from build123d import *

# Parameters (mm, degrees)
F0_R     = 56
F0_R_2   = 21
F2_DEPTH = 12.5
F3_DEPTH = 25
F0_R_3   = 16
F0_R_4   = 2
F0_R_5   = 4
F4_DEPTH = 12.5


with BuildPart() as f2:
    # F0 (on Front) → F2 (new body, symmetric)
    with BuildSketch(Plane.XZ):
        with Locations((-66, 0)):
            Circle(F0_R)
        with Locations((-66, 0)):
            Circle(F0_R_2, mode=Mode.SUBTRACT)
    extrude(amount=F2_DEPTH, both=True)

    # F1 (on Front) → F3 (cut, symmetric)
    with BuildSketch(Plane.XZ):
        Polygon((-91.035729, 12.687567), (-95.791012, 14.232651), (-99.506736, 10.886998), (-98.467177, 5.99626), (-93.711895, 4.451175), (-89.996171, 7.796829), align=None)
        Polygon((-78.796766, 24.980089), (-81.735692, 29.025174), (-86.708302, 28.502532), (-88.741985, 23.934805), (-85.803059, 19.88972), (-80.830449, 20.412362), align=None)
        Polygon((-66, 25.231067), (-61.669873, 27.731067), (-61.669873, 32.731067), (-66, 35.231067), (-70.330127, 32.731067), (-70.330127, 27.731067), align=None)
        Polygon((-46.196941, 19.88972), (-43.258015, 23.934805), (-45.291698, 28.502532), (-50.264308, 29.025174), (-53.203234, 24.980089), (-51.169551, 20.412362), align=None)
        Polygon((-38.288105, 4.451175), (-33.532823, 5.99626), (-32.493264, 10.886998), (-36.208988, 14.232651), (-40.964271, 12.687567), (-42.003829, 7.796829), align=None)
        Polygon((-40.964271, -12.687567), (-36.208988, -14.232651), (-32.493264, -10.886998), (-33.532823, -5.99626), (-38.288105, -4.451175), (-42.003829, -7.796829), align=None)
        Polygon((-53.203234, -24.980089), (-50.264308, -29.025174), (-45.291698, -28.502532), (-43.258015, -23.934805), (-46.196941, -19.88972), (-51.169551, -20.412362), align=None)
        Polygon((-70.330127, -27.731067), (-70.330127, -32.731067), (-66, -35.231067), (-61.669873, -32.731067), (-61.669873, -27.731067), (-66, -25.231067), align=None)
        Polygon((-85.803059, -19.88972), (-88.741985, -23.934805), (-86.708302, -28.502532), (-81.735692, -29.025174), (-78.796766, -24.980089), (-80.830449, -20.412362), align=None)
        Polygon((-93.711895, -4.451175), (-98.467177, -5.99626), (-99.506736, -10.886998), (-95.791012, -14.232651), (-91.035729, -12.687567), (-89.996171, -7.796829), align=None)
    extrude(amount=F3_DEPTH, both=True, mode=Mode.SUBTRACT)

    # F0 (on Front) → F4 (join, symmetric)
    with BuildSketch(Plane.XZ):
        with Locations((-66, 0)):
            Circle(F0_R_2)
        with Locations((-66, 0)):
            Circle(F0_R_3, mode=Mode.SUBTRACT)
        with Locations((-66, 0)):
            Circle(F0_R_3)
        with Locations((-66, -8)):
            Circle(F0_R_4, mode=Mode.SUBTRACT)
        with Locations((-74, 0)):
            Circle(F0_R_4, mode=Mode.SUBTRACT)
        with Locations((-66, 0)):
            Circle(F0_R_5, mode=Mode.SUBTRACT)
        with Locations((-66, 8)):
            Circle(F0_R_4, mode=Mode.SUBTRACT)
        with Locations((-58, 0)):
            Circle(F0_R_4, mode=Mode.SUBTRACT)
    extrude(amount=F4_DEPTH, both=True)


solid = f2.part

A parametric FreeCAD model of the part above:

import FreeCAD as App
import Part
import Sketcher
from FreeCAD import Vector
Q = App.Units.Quantity

doc = App.newDocument("Part")
params = doc.addObject("Spreadsheet::Sheet", "Params")
for row, (alias, value) in enumerate([
    ("sketch1_diameter", "112 mm"),
    ("sketch1_diameter2", "42 mm"),
    ("pad1_length", "25 mm"),
    ("sketch2_height", "5 mm"),
    ("sketch2_length", "5 mm"),
    ("pocket1_length", "50 mm"),
    ("sketch3_diameter", "42 mm"),
    ("sketch3_diameter2", "4 mm"),
    ("sketch3_diameter3", "8 mm"),
    ("pad2_length", "25 mm"),
], start=1):
    params.set(f"A{row}", alias)
    params.set(f"B{row}", "=" + value)
    params.setAlias(f"B{row}", alias)

body = doc.addObject("PartDesign::Body", "Body")

# Sketch on XZ plane
sketch1 = body.newObject("Sketcher::SketchObject", "Sketch")
sketch1.AttachmentSupport = (doc.getObject("XZ_Plane"), [""])
sketch1.MapMode = "FlatFace"
sketch1.addGeometry(Part.Circle(Vector(-66, 0, 0), Vector(0, 0, 1), 56), False)
sketch1.addGeometry(Part.Circle(Vector(-66, 0, 0), Vector(0, 0, 1), 21), False)
sketch1.addConstraint(Sketcher.Constraint("Coincident", 1, 3, 0, 3))
sketch1.addConstraint(Sketcher.Constraint("PointOnObject", 0, 3, -1))
sketch1.addConstraint(Sketcher.Constraint("Diameter", 0, 112.0))
sketch1.addConstraint(Sketcher.Constraint("Diameter", 1, 42.0))
sketch1.addConstraint(Sketcher.Constraint("DistanceX", 0, 3, -1, 1, 66.0))
sketch1.setExpression("Constraints[2]", "Params.sketch1_diameter")
sketch1.setExpression("Constraints[3]", "Params.sketch1_diameter2")
pad1 = body.newObject("PartDesign::Pad", "Pad")
pad1.Profile = sketch1
pad1.setExpression("Length", "Params.pad1_length")
pad1.Midplane = True

# Sketch on XZ plane
sketch2 = body.newObject("Sketcher::SketchObject", "Sketch001")
sketch2.AttachmentSupport = (doc.getObject("XZ_Plane"), [""])
sketch2.MapMode = "FlatFace"
sketch2.addGeometry(Part.LineSegment(Vector(-91, 12.7, 0), Vector(-95.8, 14.2, 0)), False)
sketch2.addGeometry(Part.LineSegment(Vector(-95.8, 14.2, 0), Vector(-99.5, 10.9, 0)), False)
sketch2.addGeometry(Part.LineSegment(Vector(-99.5, 10.9, 0), Vector(-98.5, 6, 0)), False)
sketch2.addGeometry(Part.LineSegment(Vector(-98.5, 6, 0), Vector(-93.7, 4.5, 0)), False)
sketch2.addGeometry(Part.LineSegment(Vector(-93.7, 4.5, 0), Vector(-90, 7.8, 0)), False)
sketch2.addGeometry(Part.LineSegment(Vector(-90, 7.8, 0), Vector(-91, 12.7, 0)), False)
sketch2.addGeometry(Part.LineSegment(Vector(-78.8, 25, 0), Vector(-81.7, 29, 0)), False)
sketch2.addGeometry(Part.LineSegment(Vector(-81.7, 29, 0), Vector(-86.7, 28.5, 0)), False)
sketch2.addGeometry(Part.LineSegment(Vector(-86.7, 28.5, 0), Vector(-88.7, 23.9, 0)), False)
sketch2.addGeometry(Part.LineSegment(Vector(-88.7, 23.9, 0), Vector(-85.8, 19.9, 0)), False)
sketch2.addGeometry(Part.LineSegment(Vector(-85.8, 19.9, 0), Vector(-80.8, 20.4, 0)), False)
sketch2.addGeometry(Part.LineSegment(Vector(-80.8, 20.4, 0), Vector(-78.8, 25, 0)), False)
sketch2.addGeometry(Part.LineSegment(Vector(-66, 25.2, 0), Vector(-61.7, 27.7, 0)), False)
sketch2.addGeometry(Part.LineSegment(Vector(-61.7, 27.7, 0), Vector(-61.7, 32.7, 0)), False)
sketch2.addGeometry(Part.LineSegment(Vector(-61.7, 32.7, 0), Vector(-66, 35.2, 0)), False)
sketch2.addGeometry(Part.LineSegment(Vector(-66, 35.2, 0), Vector(-70.3, 32.7, 0)), False)
sketch2.addGeometry(Part.LineSegment(Vector(-70.3, 32.7, 0), Vector(-70.3, 27.7, 0)), False)
sketch2.addGeometry(Part.LineSegment(Vector(-70.3, 27.7, 0), Vector(-66, 25.2, 0)), False)
sketch2.addGeometry(Part.LineSegment(Vector(-46.2, 19.9, 0), Vector(-43.3, 23.9, 0)), False)
sketch2.addGeometry(Part.LineSegment(Vector(-43.3, 23.9, 0), Vector(-45.3, 28.5, 0)), False)
sketch2.addGeometry(Part.LineSegment(Vector(-45.3, 28.5, 0), Vector(-50.3, 29, 0)), False)
sketch2.addGeometry(Part.LineSegment(Vector(-50.3, 29, 0), Vector(-53.2, 25, 0)), False)
sketch2.addGeometry(Part.LineSegment(Vector(-53.2, 25, 0), Vector(-51.2, 20.4, 0)), False)
sketch2.addGeometry(Part.LineSegment(Vector(-51.2, 20.4, 0), Vector(-46.2, 19.9, 0)), False)
sketch2.addGeometry(Part.LineSegment(Vector(-38.3, 4.5, 0), Vector(-33.5, 6, 0)), False)
sketch2.addGeometry(Part.LineSegment(Vector(-33.5, 6, 0), Vector(-32.5, 10.9, 0)), False)
sketch2.addGeometry(Part.LineSegment(Vector(-32.5, 10.9, 0), Vector(-36.2, 14.2, 0)), False)
sketch2.addGeometry(Part.LineSegment(Vector(-36.2, 14.2, 0), Vector(-41, 12.7, 0)), False)
sketch2.addGeometry(Part.LineSegment(Vector(-41, 12.7, 0), Vector(-42, 7.8, 0)), False)
sketch2.addGeometry(Part.LineSegment(Vector(-42, 7.8, 0), Vector(-38.3, 4.5, 0)), False)
sketch2.addGeometry(Part.LineSegment(Vector(-41, -12.7, 0), Vector(-36.2, -14.2, 0)), False)
sketch2.addGeometry(Part.LineSegment(Vector(-36.2, -14.2, 0), Vector(-32.5, -10.9, 0)), False)
sketch2.addGeometry(Part.LineSegment(Vector(-32.5, -10.9, 0), Vector(-33.5, -6, 0)), False)
sketch2.addGeometry(Part.LineSegment(Vector(-33.5, -6, 0), Vector(-38.3, -4.5, 0)), False)
sketch2.addGeometry(Part.LineSegment(Vector(-38.3, -4.5, 0), Vector(-42, -7.8, 0)), False)
sketch2.addGeometry(Part.LineSegment(Vector(-42, -7.8, 0), Vector(-41, -12.7, 0)), False)
sketch2.addGeometry(Part.LineSegment(Vector(-53.2, -25, 0), Vector(-50.3, -29, 0)), False)
sketch2.addGeometry(Part.LineSegment(Vector(-50.3, -29, 0), Vector(-45.3, -28.5, 0)), False)
sketch2.addGeometry(Part.LineSegment(Vector(-45.3, -28.5, 0), Vector(-43.3, -23.9, 0)), False)
sketch2.addGeometry(Part.LineSegment(Vector(-43.3, -23.9, 0), Vector(-46.2, -19.9, 0)), False)
sketch2.addGeometry(Part.LineSegment(Vector(-46.2, -19.9, 0), Vector(-51.2, -20.4, 0)), False)
sketch2.addGeometry(Part.LineSegment(Vector(-51.2, -20.4, 0), Vector(-53.2, -25, 0)), False)
sketch2.addGeometry(Part.LineSegment(Vector(-70.3, -27.7, 0), Vector(-70.3, -32.7, 0)), False)
sketch2.addGeometry(Part.LineSegment(Vector(-70.3, -32.7, 0), Vector(-66, -35.2, 0)), False)
sketch2.addGeometry(Part.LineSegment(Vector(-66, -35.2, 0), Vector(-61.7, -32.7, 0)), False)
sketch2.addGeometry(Part.LineSegment(Vector(-61.7, -32.7, 0), Vector(-61.7, -27.7, 0)), False)
sketch2.addGeometry(Part.LineSegment(Vector(-61.7, -27.7, 0), Vector(-66, -25.2, 0)), False)
sketch2.addGeometry(Part.LineSegment(Vector(-66, -25.2, 0), Vector(-70.3, -27.7, 0)), False)
sketch2.addGeometry(Part.LineSegment(Vector(-85.8, -19.9, 0), Vector(-88.7, -23.9, 0)), False)
sketch2.addGeometry(Part.LineSegment(Vector(-88.7, -23.9, 0), Vector(-86.7, -28.5, 0)), False)
sketch2.addGeometry(Part.LineSegment(Vector(-86.7, -28.5, 0), Vector(-81.7, -29, 0)), False)
sketch2.addGeometry(Part.LineSegment(Vector(-81.7, -29, 0), Vector(-78.8, -25, 0)), False)
sketch2.addGeometry(Part.LineSegment(Vector(-78.8, -25, 0), Vector(-80.8, -20.4, 0)), False)
sketch2.addGeometry(Part.LineSegment(Vector(-80.8, -20.4, 0), Vector(-85.8, -19.9, 0)), False)
sketch2.addGeometry(Part.LineSegment(Vector(-93.7, -4.5, 0), Vector(-98.5, -6, 0)), False)
sketch2.addGeometry(Part.LineSegment(Vector(-98.5, -6, 0), Vector(-99.5, -10.9, 0)), False)
sketch2.addGeometry(Part.LineSegment(Vector(-99.5, -10.9, 0), Vector(-95.8, -14.2, 0)), False)
sketch2.addGeometry(Part.LineSegment(Vector(-95.8, -14.2, 0), Vector(-91, -12.7, 0)), False)
sketch2.addGeometry(Part.LineSegment(Vector(-91, -12.7, 0), Vector(-90, -7.8, 0)), False)
sketch2.addGeometry(Part.LineSegment(Vector(-90, -7.8, 0), Vector(-93.7, -4.5, 0)), False)
sketch2.addConstraint(Sketcher.Constraint("Coincident", 0, 2, 1, 1))
sketch2.addConstraint(Sketcher.Constraint("Coincident", 1, 2, 2, 1))
sketch2.addConstraint(Sketcher.Constraint("Coincident", 2, 2, 3, 1))
sketch2.addConstraint(Sketcher.Constraint("Coincident", 3, 2, 4, 1))
sketch2.addConstraint(Sketcher.Constraint("Coincident", 4, 2, 5, 1))
sketch2.addConstraint(Sketcher.Constraint("Coincident", 5, 2, 0, 1))
sketch2.addConstraint(Sketcher.Constraint("Coincident", 6, 2, 7, 1))
sketch2.addConstraint(Sketcher.Constraint("Coincident", 7, 2, 8, 1))
sketch2.addConstraint(Sketcher.Constraint("Coincident", 8, 2, 9, 1))
sketch2.addConstraint(Sketcher.Constraint("Coincident", 9, 2, 10, 1))
sketch2.addConstraint(Sketcher.Constraint("Coincident", 10, 2, 11, 1))
sketch2.addConstraint(Sketcher.Constraint("Coincident", 11, 2, 6, 1))
sketch2.addConstraint(Sketcher.Constraint("Coincident", 12, 2, 13, 1))
sketch2.addConstraint(Sketcher.Constraint("Coincident", 13, 2, 14, 1))
sketch2.addConstraint(Sketcher.Constraint("Coincident", 14, 2, 15, 1))
sketch2.addConstraint(Sketcher.Constraint("Coincident", 15, 2, 16, 1))
sketch2.addConstraint(Sketcher.Constraint("Coincident", 16, 2, 17, 1))
sketch2.addConstraint(Sketcher.Constraint("Coincident", 17, 2, 12, 1))
sketch2.addConstraint(Sketcher.Constraint("Coincident", 18, 2, 19, 1))
sketch2.addConstraint(Sketcher.Constraint("Coincident", 19, 2, 20, 1))
sketch2.addConstraint(Sketcher.Constraint("Coincident", 20, 2, 21, 1))
sketch2.addConstraint(Sketcher.Constraint("Coincident", 21, 2, 22, 1))
sketch2.addConstraint(Sketcher.Constraint("Coincident", 22, 2, 23, 1))
sketch2.addConstraint(Sketcher.Constraint("Coincident", 23, 2, 18, 1))
sketch2.addConstraint(Sketcher.Constraint("Coincident", 24, 2, 25, 1))
sketch2.addConstraint(Sketcher.Constraint("Coincident", 25, 2, 26, 1))
sketch2.addConstraint(Sketcher.Constraint("Coincident", 26, 2, 27, 1))
sketch2.addConstraint(Sketcher.Constraint("Coincident", 27, 2, 28, 1))
sketch2.addConstraint(Sketcher.Constraint("Coincident", 28, 2, 29, 1))
sketch2.addConstraint(Sketcher.Constraint("Coincident", 29, 2, 24, 1))
sketch2.addConstraint(Sketcher.Constraint("Coincident", 30, 2, 31, 1))
sketch2.addConstraint(Sketcher.Constraint("Coincident", 31, 2, 32, 1))
sketch2.addConstraint(Sketcher.Constraint("Coincident", 32, 2, 33, 1))
sketch2.addConstraint(Sketcher.Constraint("Coincident", 33, 2, 34, 1))
sketch2.addConstraint(Sketcher.Constraint("Coincident", 34, 2, 35, 1))
sketch2.addConstraint(Sketcher.Constraint("Coincident", 35, 2, 30, 1))
sketch2.addConstraint(Sketcher.Constraint("Coincident", 36, 2, 37, 1))
sketch2.addConstraint(Sketcher.Constraint("Coincident", 37, 2, 38, 1))
sketch2.addConstraint(Sketcher.Constraint("Coincident", 38, 2, 39, 1))
sketch2.addConstraint(Sketcher.Constraint("Coincident", 39, 2, 40, 1))
sketch2.addConstraint(Sketcher.Constraint("Coincident", 40, 2, 41, 1))
sketch2.addConstraint(Sketcher.Constraint("Coincident", 41, 2, 36, 1))
sketch2.addConstraint(Sketcher.Constraint("Coincident", 42, 2, 43, 1))
sketch2.addConstraint(Sketcher.Constraint("Coincident", 43, 2, 44, 1))
sketch2.addConstraint(Sketcher.Constraint("Coincident", 44, 2, 45, 1))
sketch2.addConstraint(Sketcher.Constraint("Coincident", 45, 2, 46, 1))
sketch2.addConstraint(Sketcher.Constraint("Coincident", 46, 2, 47, 1))
sketch2.addConstraint(Sketcher.Constraint("Coincident", 47, 2, 42, 1))
sketch2.addConstraint(Sketcher.Constraint("Coincident", 48, 2, 49, 1))
sketch2.addConstraint(Sketcher.Constraint("Coincident", 49, 2, 50, 1))
sketch2.addConstraint(Sketcher.Constraint("Coincident", 50, 2, 51, 1))
sketch2.addConstraint(Sketcher.Constraint("Coincident", 51, 2, 52, 1))
sketch2.addConstraint(Sketcher.Constraint("Coincident", 52, 2, 53, 1))
sketch2.addConstraint(Sketcher.Constraint("Coincident", 53, 2, 48, 1))
sketch2.addConstraint(Sketcher.Constraint("Coincident", 54, 2, 55, 1))
sketch2.addConstraint(Sketcher.Constraint("Coincident", 55, 2, 56, 1))
sketch2.addConstraint(Sketcher.Constraint("Coincident", 56, 2, 57, 1))
sketch2.addConstraint(Sketcher.Constraint("Coincident", 57, 2, 58, 1))
sketch2.addConstraint(Sketcher.Constraint("Coincident", 58, 2, 59, 1))
sketch2.addConstraint(Sketcher.Constraint("Coincident", 59, 2, 54, 1))
sketch2.addConstraint(Sketcher.Constraint("Vertical", 13))
sketch2.addConstraint(Sketcher.Constraint("Vertical", 16))
sketch2.addConstraint(Sketcher.Constraint("Vertical", 42))
sketch2.addConstraint(Sketcher.Constraint("Vertical", 45))
sketch2.addConstraint(Sketcher.Constraint("Symmetric", 26, 2, 30, 2, -1))
sketch2.addConstraint(Sketcher.Constraint("Symmetric", 25, 2, 31, 2, -1))
sketch2.addConstraint(Sketcher.Constraint("Symmetric", 24, 2, 32, 2, -1))
sketch2.addConstraint(Sketcher.Constraint("Symmetric", 29, 2, 33, 2, -1))
sketch2.addConstraint(Sketcher.Constraint("Symmetric", 28, 2, 34, 2, -1))
sketch2.addConstraint(Sketcher.Constraint("Symmetric", 27, 2, 35, 2, -1))
sketch2.addConstraint(Sketcher.Constraint("Symmetric", 20, 2, 36, 2, -1))
sketch2.addConstraint(Sketcher.Constraint("Symmetric", 19, 2, 37, 2, -1))
sketch2.addConstraint(Sketcher.Constraint("Symmetric", 18, 2, 38, 2, -1))
sketch2.addConstraint(Sketcher.Constraint("Symmetric", 23, 2, 39, 2, -1))
sketch2.addConstraint(Sketcher.Constraint("Symmetric", 22, 2, 40, 2, -1))
sketch2.addConstraint(Sketcher.Constraint("Symmetric", 21, 2, 41, 2, -1))
sketch2.addConstraint(Sketcher.Constraint("Symmetric", 15, 2, 42, 2, -1))
sketch2.addConstraint(Sketcher.Constraint("Symmetric", 14, 2, 43, 2, -1))
sketch2.addConstraint(Sketcher.Constraint("Symmetric", 13, 2, 44, 2, -1))
sketch2.addConstraint(Sketcher.Constraint("Symmetric", 17, 2, 46, 2, -1))
sketch2.addConstraint(Sketcher.Constraint("Symmetric", 8, 2, 48, 2, -1))
sketch2.addConstraint(Sketcher.Constraint("Symmetric", 7, 2, 49, 2, -1))
sketch2.addConstraint(Sketcher.Constraint("Symmetric", 6, 2, 50, 2, -1))
sketch2.addConstraint(Sketcher.Constraint("Symmetric", 11, 2, 51, 2, -1))
sketch2.addConstraint(Sketcher.Constraint("Symmetric", 10, 2, 52, 2, -1))
sketch2.addConstraint(Sketcher.Constraint("Symmetric", 9, 2, 53, 2, -1))
sketch2.addConstraint(Sketcher.Constraint("Symmetric", 2, 2, 54, 2, -1))
sketch2.addConstraint(Sketcher.Constraint("Symmetric", 1, 2, 55, 2, -1))
sketch2.addConstraint(Sketcher.Constraint("Symmetric", 0, 2, 56, 2, -1))
sketch2.addConstraint(Sketcher.Constraint("Symmetric", 5, 2, 57, 2, -1))
sketch2.addConstraint(Sketcher.Constraint("Symmetric", 4, 2, 58, 2, -1))
sketch2.addConstraint(Sketcher.Constraint("Symmetric", 3, 2, 59, 2, -1))
sketch2.addConstraint(Sketcher.Constraint("Parallel", 0, 3))
sketch2.addConstraint(Sketcher.Constraint("Parallel", 1, 4))
sketch2.addConstraint(Sketcher.Constraint("Parallel", 2, 5))
sketch2.addConstraint(Sketcher.Constraint("Parallel", 6, 9))
sketch2.addConstraint(Sketcher.Constraint("Parallel", 7, 10))
sketch2.addConstraint(Sketcher.Constraint("Parallel", 8, 11))
sketch2.addConstraint(Sketcher.Constraint("Parallel", 12, 15))
sketch2.addConstraint(Sketcher.Constraint("Parallel", 14, 17))
sketch2.addConstraint(Sketcher.Constraint("Parallel", 18, 21))
sketch2.addConstraint(Sketcher.Constraint("Parallel", 19, 22))
sketch2.addConstraint(Sketcher.Constraint("Parallel", 20, 23))
sketch2.addConstraint(Sketcher.Constraint("Parallel", 24, 27))
sketch2.addConstraint(Sketcher.Constraint("Parallel", 25, 28))
sketch2.addConstraint(Sketcher.Constraint("Parallel", 26, 29))
sketch2.addConstraint(Sketcher.Constraint("Parallel", 3, 30))
sketch2.addConstraint(Sketcher.Constraint("Parallel", 4, 31))
sketch2.addConstraint(Sketcher.Constraint("Parallel", 5, 32))
sketch2.addConstraint(Sketcher.Constraint("Parallel", 9, 36))
sketch2.addConstraint(Sketcher.Constraint("Parallel", 10, 37))
sketch2.addConstraint(Sketcher.Constraint("Parallel", 11, 38))
sketch2.addConstraint(Sketcher.Constraint("Parallel", 17, 43))
sketch2.addConstraint(Sketcher.Constraint("Parallel", 43, 46))
sketch2.addConstraint(Sketcher.Constraint("Parallel", 44, 47))
sketch2.addConstraint(Sketcher.Constraint("Horizontal", 13, 2, 15, 2))
sketch2.addConstraint(Sketcher.Constraint("Horizontal", 12, 2, 16, 2))
sketch2.addConstraint(Sketcher.Constraint("Horizontal", 8, 2, 18, 2))
sketch2.addConstraint(Sketcher.Constraint("Horizontal", 7, 2, 19, 2))
sketch2.addConstraint(Sketcher.Constraint("Horizontal", 6, 2, 20, 2))
sketch2.addConstraint(Sketcher.Constraint("Horizontal", 11, 2, 21, 2))
sketch2.addConstraint(Sketcher.Constraint("Horizontal", 10, 2, 22, 2))
sketch2.addConstraint(Sketcher.Constraint("Horizontal", 2, 2, 24, 2))
sketch2.addConstraint(Sketcher.Constraint("Horizontal", 1, 2, 25, 2))
sketch2.addConstraint(Sketcher.Constraint("Horizontal", 0, 2, 26, 2))
sketch2.addConstraint(Sketcher.Constraint("Horizontal", 5, 2, 27, 2))
sketch2.addConstraint(Sketcher.Constraint("Horizontal", 4, 2, 28, 2))
sketch2.addConstraint(Sketcher.Constraint("Equal", 0, 1))
sketch2.addConstraint(Sketcher.Constraint("Equal", 1, 2))
sketch2.addConstraint(Sketcher.Constraint("Equal", 2, 3))
sketch2.addConstraint(Sketcher.Constraint("Equal", 5, 6))
sketch2.addConstraint(Sketcher.Constraint("Equal", 6, 7))
sketch2.addConstraint(Sketcher.Constraint("Equal", 7, 8))
sketch2.addConstraint(Sketcher.Constraint("Equal", 8, 9))
sketch2.addConstraint(Sketcher.Constraint("Equal", 11, 12))
sketch2.addConstraint(Sketcher.Constraint("DistanceY", 13, 1, 13, 2, 5.0))
sketch2.addConstraint(Sketcher.Constraint("Angle", 0, Q("162.000012 deg")))
sketch2.addConstraint(Sketcher.Constraint("Angle", 1, Q("-137.999999 deg")))
sketch2.addConstraint(Sketcher.Constraint("Angle", 2, Q("-77.999994 deg")))
sketch2.addConstraint(Sketcher.Constraint("Angle", 6, Q("125.999997 deg")))
sketch2.addConstraint(Sketcher.Constraint("Angle", 7, Q("-174.000004 deg")))
sketch2.addConstraint(Sketcher.Constraint("Angle", 8, Q("-113.999999 deg")))
sketch2.addConstraint(Sketcher.Constraint("Angle", 12, Q("30 deg")))
sketch2.addConstraint(Sketcher.Constraint("Distance", 0, 5.0))
sketch2.addConstraint(Sketcher.Constraint("DistanceX", 14, 2, -1, 1, 66.0))
sketch2.addConstraint(Sketcher.Constraint("DistanceY", 3, 2, 6, 2, 24.573999))
sketch2.addConstraint(Sketcher.Constraint("DistanceX", 0, 2, -1, 1, 95.791012))
sketch2.addConstraint(Sketcher.Constraint("DistanceY", -1, 1, 0, 2, 14.232651))
sketch2.addConstraint(Sketcher.Constraint("DistanceX", 6, 2, -1, 1, 81.735692))
sketch2.addConstraint(Sketcher.Constraint("DistanceX", 22, 2, -1, 1, 51.169551))
sketch2.addConstraint(Sketcher.Constraint("DistanceX", 27, 2, -1, 1, 40.964271))
sketch2.addConstraint(Sketcher.Constraint("DistanceY", 11, 2, 13, 2, 7.750978))
sketch2.setExpression("Constraints[135]", "Params.sketch2_height")
sketch2.setExpression("Constraints[143]", "Params.sketch2_length")
pocket1 = body.newObject("PartDesign::Pocket", "Pocket")
pocket1.Profile = sketch2
pocket1.setExpression("Length", "Params.pocket1_length")
pocket1.Midplane = True

# Sketch on XZ plane
sketch3 = body.newObject("Sketcher::SketchObject", "Sketch002")
sketch3.AttachmentSupport = (doc.getObject("XZ_Plane"), [""])
sketch3.MapMode = "FlatFace"
sketch3.addGeometry(Part.Circle(Vector(-66, 0, 0), Vector(0, 0, 1), 21), False)
sketch3.addGeometry(Part.Circle(Vector(-66, -8, 0), Vector(0, 0, 1), 2), False)
sketch3.addGeometry(Part.Circle(Vector(-74, 0, 0), Vector(0, 0, 1), 2), False)
sketch3.addGeometry(Part.Circle(Vector(-66, 0, 0), Vector(0, 0, 1), 4), False)
sketch3.addGeometry(Part.Circle(Vector(-58, 0, 0), Vector(0, 0, 1), 2), False)
sketch3.addGeometry(Part.Circle(Vector(-66, 8, 0), Vector(0, 0, 1), 2), False)
sketch3.addConstraint(Sketcher.Constraint("Coincident", 3, 3, 0, 3))
sketch3.addConstraint(Sketcher.Constraint("Equal", 1, 2))
sketch3.addConstraint(Sketcher.Constraint("Equal", 2, 4))
sketch3.addConstraint(Sketcher.Constraint("Equal", 4, 5))
sketch3.addConstraint(Sketcher.Constraint("Symmetric", 1, 3, 5, 3, -1))
sketch3.addConstraint(Sketcher.Constraint("PointOnObject", 0, 3, -1))
sketch3.addConstraint(Sketcher.Constraint("PointOnObject", 2, 3, -1))
sketch3.addConstraint(Sketcher.Constraint("PointOnObject", 4, 3, -1))
sketch3.addConstraint(Sketcher.Constraint("Vertical", 0, 3, 1, 3))
sketch3.addConstraint(Sketcher.Constraint("Diameter", 0, 42.0))
sketch3.addConstraint(Sketcher.Constraint("Diameter", 1, 4.0))
sketch3.addConstraint(Sketcher.Constraint("Diameter", 3, 8.0))
sketch3.addConstraint(Sketcher.Constraint("DistanceX", 0, 3, -1, 1, 66.0))
sketch3.addConstraint(Sketcher.Constraint("DistanceY", 1, 3, -1, 1, 8.0))
sketch3.addConstraint(Sketcher.Constraint("DistanceX", 2, 3, -1, 1, 74.0))
sketch3.addConstraint(Sketcher.Constraint("DistanceX", 4, 3, -1, 1, 58.0))
sketch3.setExpression("Constraints[9]", "Params.sketch3_diameter")
sketch3.setExpression("Constraints[10]", "Params.sketch3_diameter2")
sketch3.setExpression("Constraints[11]", "Params.sketch3_diameter3")
pad2 = body.newObject("PartDesign::Pad", "Pad001")
pad2.Profile = sketch3
pad2.setExpression("Length", "Params.pad2_length")
pad2.Midplane = True

doc.recompute()
